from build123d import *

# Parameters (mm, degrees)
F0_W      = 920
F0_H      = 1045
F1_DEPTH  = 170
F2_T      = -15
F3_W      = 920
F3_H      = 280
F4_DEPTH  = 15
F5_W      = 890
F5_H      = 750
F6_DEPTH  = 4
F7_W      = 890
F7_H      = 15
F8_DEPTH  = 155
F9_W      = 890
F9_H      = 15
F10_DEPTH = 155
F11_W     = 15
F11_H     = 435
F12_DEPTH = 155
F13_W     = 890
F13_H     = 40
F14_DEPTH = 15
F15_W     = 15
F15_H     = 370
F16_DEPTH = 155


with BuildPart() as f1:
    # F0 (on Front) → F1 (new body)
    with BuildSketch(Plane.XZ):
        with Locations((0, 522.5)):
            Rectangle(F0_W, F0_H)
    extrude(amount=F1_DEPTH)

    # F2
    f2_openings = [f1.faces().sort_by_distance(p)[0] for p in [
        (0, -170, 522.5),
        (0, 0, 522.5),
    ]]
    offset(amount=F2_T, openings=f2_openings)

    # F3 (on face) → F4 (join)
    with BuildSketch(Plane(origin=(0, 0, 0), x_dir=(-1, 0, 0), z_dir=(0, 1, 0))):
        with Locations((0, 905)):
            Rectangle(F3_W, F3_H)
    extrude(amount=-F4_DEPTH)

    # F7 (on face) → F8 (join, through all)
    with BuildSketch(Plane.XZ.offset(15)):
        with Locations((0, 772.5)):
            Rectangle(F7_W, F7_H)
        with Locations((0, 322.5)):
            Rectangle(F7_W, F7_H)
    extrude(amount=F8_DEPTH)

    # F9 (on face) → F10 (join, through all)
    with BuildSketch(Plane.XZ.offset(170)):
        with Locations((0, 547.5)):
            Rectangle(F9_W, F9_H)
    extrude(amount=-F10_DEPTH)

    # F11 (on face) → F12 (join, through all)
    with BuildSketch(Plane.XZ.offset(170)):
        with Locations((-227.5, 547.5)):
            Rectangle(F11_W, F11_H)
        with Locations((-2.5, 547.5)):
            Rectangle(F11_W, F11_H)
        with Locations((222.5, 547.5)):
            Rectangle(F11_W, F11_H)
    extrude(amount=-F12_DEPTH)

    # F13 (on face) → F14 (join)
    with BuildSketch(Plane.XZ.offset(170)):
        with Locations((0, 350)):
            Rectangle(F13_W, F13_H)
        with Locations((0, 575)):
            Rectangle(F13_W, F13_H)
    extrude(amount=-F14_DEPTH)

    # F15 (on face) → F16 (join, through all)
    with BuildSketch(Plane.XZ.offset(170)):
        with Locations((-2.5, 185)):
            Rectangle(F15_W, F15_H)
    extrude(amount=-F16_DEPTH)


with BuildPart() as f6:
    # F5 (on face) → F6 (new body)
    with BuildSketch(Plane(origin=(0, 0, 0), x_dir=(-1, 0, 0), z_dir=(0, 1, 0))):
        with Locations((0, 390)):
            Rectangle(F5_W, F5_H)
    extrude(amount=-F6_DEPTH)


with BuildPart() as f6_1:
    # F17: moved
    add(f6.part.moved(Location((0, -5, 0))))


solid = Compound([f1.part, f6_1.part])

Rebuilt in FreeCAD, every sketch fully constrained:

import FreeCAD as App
import Part
import Sketcher
Q = App.Units.Quantity


def faces_at(feature, points):
    """Names of the faces that lie closest to the given points."""
    faces = feature.Shape.Faces
    near = lambda p: min(range(len(faces)), key=lambda i: faces[i].distToShape(Part.Vertex(*p))[0])
    return sorted({f"Face{near(p) + 1}" for p in points})

doc = App.newDocument("Part")
params = doc.addObject("Spreadsheet::Sheet", "Params")
for row, (alias, value) in enumerate([
    ("sketch1_width", "920 mm"),
    ("sketch1_height", "1045 mm"),
    ("pad1_length", "170 mm"),
    ("thickness_wall", "15 mm"),
    ("sketch2_width", "920 mm"),
    ("sketch2_height", "280 mm"),
    ("pad2_length", "15 mm"),
    ("sketch3_width", "890 mm"),
    ("sketch3_height", "15 mm"),
    ("pad3_length", "155 mm"),
    ("sketch4_width", "890 mm"),
    ("sketch4_height", "15 mm"),
    ("pad4_length", "155 mm"),
    ("sketch5_width", "15 mm"),
    ("sketch5_height", "435 mm"),
    ("sketch6_width", "890 mm"),
    ("sketch6_height", "40 mm"),
    ("pad6_length", "15 mm"),
    ("sketch7_width", "15 mm"),
    ("sketch7_height", "370 mm"),
    ("pad7_length", "155 mm"),
    ("sketch8_width", "890 mm"),
    ("sketch8_height", "750 mm"),
    ("pad8_length", "4 mm"),
], start=1):
    params.set(f"A{row}", alias)
    params.set(f"B{row}", "=" + value)
    params.setAlias(f"B{row}", alias)

body = doc.addObject("PartDesign::Body", "Body")

sketch1 = body.newObject("Sketcher::SketchObject", "Sketch")
sketch1.AttachmentSupport = (doc.getObject("XZ_Plane"), [""])
sketch1.MapMode = "FlatFace"
sketch1.addGeometry([
    Part.LineSegment(App.Vector(-460, 1045, 0), App.Vector(-460, 0, 0)),
    Part.LineSegment(App.Vector(-460, 0, 0), App.Vector(460, 0, 0)),
    Part.LineSegment(App.Vector(460, 0, 0), App.Vector(460, 1045, 0)),
    Part.LineSegment(App.Vector(460, 1045, 0), App.Vector(-460, 1045, 0)),
], False)
sketch1.addConstraint([
    Sketcher.Constraint("Coincident", 0, 2, 1, 1),
    Sketcher.Constraint("Coincident", 1, 2, 2, 1),
    Sketcher.Constraint("Coincident", 2, 2, 3, 1),
    Sketcher.Constraint("Coincident", 3, 2, 0, 1),
    Sketcher.Constraint("Vertical", 0),
    Sketcher.Constraint("Horizontal", 1),
    Sketcher.Constraint("Vertical", 2),
    Sketcher.Constraint("Horizontal", 3),
    Sketcher.Constraint("Symmetric", 0, 2, 1, 2, -1, 1),
    Sketcher.Constraint("DistanceX", 1, 1, 1, 2, Q("920 mm")),
    Sketcher.Constraint("DistanceY", 0, 2, 0, 1, Q("1045 mm")),
])
sketch1.setExpression("Constraints[9]", "Params.sketch1_width")
sketch1.setExpression("Constraints[10]", "Params.sketch1_height")
pad1 = body.newObject("PartDesign::Pad", "Pad")
pad1.Profile = sketch1
pad1.setExpression("Length", "Params.pad1_length")
doc.recompute()

thickness = body.newObject("PartDesign::Thickness", "Thickness")
thickness.Base = (pad1, faces_at(pad1, [(0, -170, 522.5), (0, 0, 522.5)]))
thickness.setExpression("Value", "Params.thickness_wall")
thickness.Reversed = True
thickness.Join = "Arc"

sketch2 = body.newObject("Sketcher::SketchObject", "Sketch001")
sketch2.AttachmentSupport = (doc.getObject("XZ_Plane"), [""])
sketch2.MapMode = "FlatFace"
sketch2.addGeometry([
    Part.LineSegment(App.Vector(460, 1045, 0), App.Vector(460, 765, 0)),
    Part.LineSegment(App.Vector(460, 765, 0), App.Vector(-460, 765, 0)),
    Part.LineSegment(App.Vector(-460, 765, 0), App.Vector(-460, 1045, 0)),
    Part.LineSegment(App.Vector(-460, 1045, 0), App.Vector(460, 1045, 0)),
], False)
sketch2.addConstraint([
    Sketcher.Constraint("Coincident", 0, 2, 1, 1),
    Sketcher.Constraint("Coincident", 1, 2, 2, 1),
    Sketcher.Constraint("Coincident", 2, 2, 3, 1),
    Sketcher.Constraint("Coincident", 3, 2, 0, 1),
    Sketcher.Constraint("Vertical", 0),
    Sketcher.Constraint("Horizontal", 1),
    Sketcher.Constraint("Vertical", 2),
    Sketcher.Constraint("Horizontal", 3),
    Sketcher.Constraint("DistanceX", 1, 2, 1, 1, Q("920 mm")),
    Sketcher.Constraint("DistanceY", 0, 2, 0, 1, Q("280 mm")),
    Sketcher.Constraint("DistanceX", -1, 1, 0, 2, Q("460 mm")),
    Sketcher.Constraint("DistanceY", -1, 1, 0, 2, Q("765 mm")),
])
sketch2.setExpression("Constraints[8]", "Params.sketch2_width")
sketch2.setExpression("Constraints[9]", "Params.sketch2_height")
pad2 = body.newObject("PartDesign::Pad", "Pad001")
pad2.Profile = sketch2
pad2.setExpression("Length", "Params.pad2_length")

sketch3 = body.newObject("Sketcher::SketchObject", "Sketch002")
sketch3.AttachmentSupport = (doc.getObject("XZ_Plane"), [""])
sketch3.MapMode = "FlatFace"
sketch3.AttachmentOffset = App.Placement(App.Vector(0, 0, 15), App.Rotation())
sketch3.addGeometry([
    Part.LineSegment(App.Vector(-445, 780, 0), App.Vector(-445, 765, 0)),
    Part.LineSegment(App.Vector(-445, 765, 0), App.Vector(445, 765, 0)),
    Part.LineSegment(App.Vector(445, 765, 0), App.Vector(445, 780, 0)),
    Part.LineSegment(App.Vector(445, 780, 0), App.Vector(-445, 780, 0)),
    Part.LineSegment(App.Vector(-445, 330, 0), App.Vector(-445, 315, 0)),
    Part.LineSegment(App.Vector(-445, 315, 0), App.Vector(445, 315, 0)),
    Part.LineSegment(App.Vector(445, 315, 0), App.Vector(445, 330, 0)),
    Part.LineSegment(App.Vector(445, 330, 0), App.Vector(-445, 330, 0)),
], False)
sketch3.addConstraint([
    Sketcher.Constraint("Coincident", 0, 2, 1, 1),
    Sketcher.Constraint("Coincident", 1, 2, 2, 1),
    Sketcher.Constraint("Coincident", 2, 2, 3, 1),
    Sketcher.Constraint("Coincident", 3, 2, 0, 1),
    Sketcher.Constraint("Coincident", 4, 2, 5, 1),
    Sketcher.Constraint("Coincident", 5, 2, 6, 1),
    Sketcher.Constraint("Coincident", 6, 2, 7, 1),
    Sketcher.Constraint("Coincident", 7, 2, 4, 1),
    Sketcher.Constraint("Vertical", 0),
    Sketcher.Constraint("Horizontal", 1),
    Sketcher.Constraint("Vertical", 2),
    Sketcher.Constraint("Horizontal", 3),
    Sketcher.Constraint("Vertical", 4),
    Sketcher.Constraint("Horizontal", 5),
    Sketcher.Constraint("Vertical", 6),
    Sketcher.Constraint("Horizontal", 7),
    Sketcher.Constraint("Vertical", 3, 2, 4, 2),
    Sketcher.Constraint("Vertical", 2, 2, 5, 2),
    Sketcher.Constraint("Equal", 2, 4),
    Sketcher.Constraint("DistanceX", 1, 1, 1, 2, Q("890 mm")),
    Sketcher.Constraint("DistanceY", 0, 2, 0, 1, Q("15 mm")),
    Sketcher.Constraint("DistanceX", 0, 2, -1, 1, Q("445 mm")),
    Sketcher.Constraint("DistanceY", -1, 1, 0, 2, Q("765 mm")),
    Sketcher.Constraint("DistanceY", -1, 1, 4, 2, Q("315 mm")),
])
sketch3.setExpression("Constraints[19]", "Params.sketch3_width")
sketch3.setExpression("Constraints[20]", "Params.sketch3_height")
pad3 = body.newObject("PartDesign::Pad", "Pad002")
pad3.Profile = sketch3
pad3.setExpression("Length", "Params.pad3_length")

sketch4 = body.newObject("Sketcher::SketchObject", "Sketch003")
sketch4.AttachmentSupport = (doc.getObject("XZ_Plane"), [""])
sketch4.MapMode = "FlatFace"
sketch4.AttachmentOffset = App.Placement(App.Vector(0, 0, 170), App.Rotation())
sketch4.addGeometry([
    Part.LineSegment(App.Vector(-445, 555, 0), App.Vector(-445, 540, 0)),
    Part.LineSegment(App.Vector(-445, 540, 0), App.Vector(445, 540, 0)),
    Part.LineSegment(App.Vector(445, 540, 0), App.Vector(445, 555, 0)),
    Part.LineSegment(App.Vector(445, 555, 0), App.Vector(-445, 555, 0)),
], False)
sketch4.addConstraint([
    Sketcher.Constraint("Coincident", 0, 2, 1, 1),
    Sketcher.Constraint("Coincident", 1, 2, 2, 1),
    Sketcher.Constraint("Coincident", 2, 2, 3, 1),
    Sketcher.Constraint("Coincident", 3, 2, 0, 1),
    Sketcher.Constraint("Vertical", 0),
    Sketcher.Constraint("Horizontal", 1),
    Sketcher.Constraint("Vertical", 2),
    Sketcher.Constraint("Horizontal", 3),
    Sketcher.Constraint("DistanceX", 1, 1, 1, 2, Q("890 mm")),
    Sketcher.Constraint("DistanceY", 0, 2, 0, 1, Q("15 mm")),
    Sketcher.Constraint("DistanceX", 0, 2, -1, 1, Q("445 mm")),
    Sketcher.Constraint("DistanceY", -1, 1, 0, 2, Q("540 mm")),
])
sketch4.setExpression("Constraints[8]", "Params.sketch4_width")
sketch4.setExpression("Constraints[9]", "Params.sketch4_height")
pad4 = body.newObject("PartDesign::Pad", "Pad003")
pad4.Profile = sketch4
pad4.setExpression("Length", "Params.pad4_length")
pad4.Reversed = True

sketch5 = body.newObject("Sketcher::SketchObject", "Sketch004")
sketch5.AttachmentSupport = (doc.getObject("XZ_Plane"), [""])
sketch5.MapMode = "FlatFace"
sketch5.AttachmentOffset = App.Placement(App.Vector(0, 0, 170), App.Rotation())
sketch5.addGeometry([
    Part.LineSegment(App.Vector(-235, 765, 0), App.Vector(-235, 330, 0)),
    Part.LineSegment(App.Vector(-235, 330, 0), App.Vector(-220, 330, 0)),
    Part.LineSegment(App.Vector(-220, 330, 0), App.Vector(-220, 765, 0)),
    Part.LineSegment(App.Vector(-220, 765, 0), App.Vector(-235, 765, 0)),
    Part.LineSegment(App.Vector(-10, 765, 0), App.Vector(-10, 330, 0)),
    Part.LineSegment(App.Vector(-10, 330, 0), App.Vector(5, 330, 0)),
    Part.LineSegment(App.Vector(5, 330, 0), App.Vector(5, 765, 0)),
    Part.LineSegment(App.Vector(5, 765, 0), App.Vector(-10, 765, 0)),
    Part.LineSegment(App.Vector(215, 765, 0), App.Vector(215, 330, 0)),
    Part.LineSegment(App.Vector(215, 330, 0), App.Vector(230, 330, 0)),
    Part.LineSegment(App.Vector(230, 330, 0), App.Vector(230, 765, 0)),
    Part.LineSegment(App.Vector(230, 765, 0), App.Vector(215, 765, 0)),
], False)
sketch5.addConstraint([
    Sketcher.Constraint("Coincident", 0, 2, 1, 1),
    Sketcher.Constraint("Coincident", 1, 2, 2, 1),
    Sketcher.Constraint("Coincident", 2, 2, 3, 1),
    Sketcher.Constraint("Coincident", 3, 2, 0, 1),
    Sketcher.Constraint("Coincident", 4, 2, 5, 1),
    Sketcher.Constraint("Coincident", 5, 2, 6, 1),
    Sketcher.Constraint("Coincident", 6, 2, 7, 1),
    Sketcher.Constraint("Coincident", 7, 2, 4, 1),
    Sketcher.Constraint("Coincident", 8, 2, 9, 1),
    Sketcher.Constraint("Coincident", 9, 2, 10, 1),
    Sketcher.Constraint("Coincident", 10, 2, 11, 1),
    Sketcher.Constraint("Coincident", 11, 2, 8, 1),
    Sketcher.Constraint("Vertical", 0),
    Sketcher.Constraint("Horizontal", 1),
    Sketcher.Constraint("Vertical", 2),
    Sketcher.Constraint("Horizontal", 3),
    Sketcher.Constraint("Vertical", 4),
    Sketcher.Constraint("Horizontal", 5),
    Sketcher.Constraint("Vertical", 6),
    Sketcher.Constraint("Horizontal", 7),
    Sketcher.Constraint("Vertical", 8),
    Sketcher.Constraint("Horizontal", 9),
    Sketcher.Constraint("Vertical", 10),
    Sketcher.Constraint("Horizontal", 11),
    Sketcher.Constraint("Horizontal", 1, 2, 4, 2),
    Sketcher.Constraint("Horizontal", 3, 2, 6, 2),
    Sketcher.Constraint("Horizontal", 5, 2, 8, 2),
    Sketcher.Constraint("Horizontal", 7, 2, 10, 2),
    Sketcher.Constraint("Equal", 3, 5),
    Sketcher.Constraint("Equal", 7, 9),
    Sketcher.Constraint("DistanceX", 1, 1, 1, 2, Q("15 mm")),
    Sketcher.Constraint("DistanceY", 0, 2, 0, 1, Q("435 mm")),
    Sketcher.Constraint("DistanceX", 0, 2, -1, 1, Q("235 mm")),
    Sketcher.Constraint("DistanceY", -1, 1, 0, 2, Q("330 mm")),
    Sketcher.Constraint("DistanceX", 4, 2, -1, 1, Q("10 mm")),
    Sketcher.Constraint("DistanceX", -1, 1, 8, 2, Q("215 mm")),
])
sketch5.setExpression("Constraints[30]", "Params.sketch5_width")
sketch5.setExpression("Constraints[31]", "Params.sketch5_height")
pad5 = body.newObject("PartDesign::Pad", "Pad004")
pad5.Profile = sketch5
pad5.Type = "UpToLast"
pad5.Reversed = True

sketch6 = body.newObject("Sketcher::SketchObject", "Sketch005")
sketch6.AttachmentSupport = (doc.getObject("XZ_Plane"), [""])
sketch6.MapMode = "FlatFace"
sketch6.AttachmentOffset = App.Placement(App.Vector(0, 0, 170), App.Rotation())
sketch6.addGeometry([
    Part.LineSegment(App.Vector(-445, 370, 0), App.Vector(-445, 330, 0)),
    Part.LineSegment(App.Vector(-445, 330, 0), App.Vector(445, 330, 0)),
    Part.LineSegment(App.Vector(445, 330, 0), App.Vector(445, 370, 0)),
    Part.LineSegment(App.Vector(445, 370, 0), App.Vector(-445, 370, 0)),
    Part.LineSegment(App.Vector(-445, 595, 0), App.Vector(-445, 555, 0)),
    Part.LineSegment(App.Vector(-445, 555, 0), App.Vector(445, 555, 0)),
    Part.LineSegment(App.Vector(445, 555, 0), App.Vector(445, 595, 0)),
    Part.LineSegment(App.Vector(445, 595, 0), App.Vector(-445, 595, 0)),
], False)
sketch6.addConstraint([
    Sketcher.Constraint("Coincident", 0, 2, 1, 1),
    Sketcher.Constraint("Coincident", 1, 2, 2, 1),
    Sketcher.Constraint("Coincident", 2, 2, 3, 1),
    Sketcher.Constraint("Coincident", 3, 2, 0, 1),
    Sketcher.Constraint("Coincident", 4, 2, 5, 1),
    Sketcher.Constraint("Coincident", 5, 2, 6, 1),
    Sketcher.Constraint("Coincident", 6, 2, 7, 1),
    Sketcher.Constraint("Coincident", 7, 2, 4, 1),
    Sketcher.Constraint("Vertical", 0),
    Sketcher.Constraint("Horizontal", 1),
    Sketcher.Constraint("Vertical", 2),
    Sketcher.Constraint("Horizontal", 3),
    Sketcher.Constraint("Vertical", 4),
    Sketcher.Constraint("Horizontal", 5),
    Sketcher.Constraint("Vertical", 6),
    Sketcher.Constraint("Horizontal", 7),
    Sketcher.Constraint("Vertical", 3, 2, 4, 2),
    Sketcher.Constraint("Vertical", 2, 2, 5, 2),
    Sketcher.Constraint("Equal", 2, 4),
    Sketcher.Constraint("DistanceX", 1, 1, 1, 2, Q("890 mm")),
    Sketcher.Constraint("DistanceY", 0, 2, 0, 1, Q("40 mm")),
    Sketcher.Constraint("DistanceX", 0, 2, -1, 1, Q("445 mm")),
    Sketcher.Constraint("DistanceY", -1, 1, 0, 2, Q("330 mm")),
    Sketcher.Constraint("DistanceY", -1, 1, 4, 2, Q("555 mm")),
])
sketch6.setExpression("Constraints[19]", "Params.sketch6_width")
sketch6.setExpression("Constraints[20]", "Params.sketch6_height")
pad6 = body.newObject("PartDesign::Pad", "Pad005")
pad6.Profile = sketch6
pad6.setExpression("Length", "Params.pad6_length")
pad6.Reversed = True

sketch7 = body.newObject("Sketcher::SketchObject", "Sketch006")
sketch7.AttachmentSupport = (doc.getObject("XZ_Plane"), [""])
sketch7.MapMode = "FlatFace"
sketch7.AttachmentOffset = App.Placement(App.Vector(0, 0, 170), App.Rotation())
sketch7.addGeometry([
    Part.LineSegment(App.Vector(-10, 370, 0), App.Vector(-10, 0, 0)),
    Part.LineSegment(App.Vector(-10, 0, 0), App.Vector(5, 0, 0)),
    Part.LineSegment(App.Vector(5, 0, 0), App.Vector(5, 370, 0)),
    Part.LineSegment(App.Vector(5, 370, 0), App.Vector(-10, 370, 0)),
], False)
sketch7.addConstraint([
    Sketcher.Constraint("Coincident", 0, 2, 1, 1),
    Sketcher.Constraint("Coincident", 1, 2, 2, 1),
    Sketcher.Constraint("Coincident", 2, 2, 3, 1),
    Sketcher.Constraint("Coincident", 3, 2, 0, 1),
    Sketcher.Constraint("Vertical", 0),
    Sketcher.Constraint("Horizontal", 1),
    Sketcher.Constraint("Vertical", 2),
    Sketcher.Constraint("Horizontal", 3),
    Sketcher.Constraint("PointOnObject", 0, 2, -1),
    Sketcher.Constraint("DistanceX", 1, 1, 1, 2, Q("15 mm")),
    Sketcher.Constraint("DistanceY", 0, 2, 0, 1, Q("370 mm")),
    Sketcher.Constraint("DistanceX", 0, 2, -1, 1, Q("10 mm")),
])
sketch7.setExpression("Constraints[9]", "Params.sketch7_width")
sketch7.setExpression("Constraints[10]", "Params.sketch7_height")
pad7 = body.newObject("PartDesign::Pad", "Pad006")
pad7.Profile = sketch7
pad7.setExpression("Length", "Params.pad7_length")
pad7.Reversed = True
body2 = doc.addObject("PartDesign::Body", "Body001")

sketch8 = body2.newObject("Sketcher::SketchObject", "Sketch007")
sketch8.AttachmentSupport = (doc.getObject("XZ_Plane001"), [""])
sketch8.MapMode = "FlatFace"
sketch8.addGeometry([
    Part.LineSegment(App.Vector(445, 765, 0), App.Vector(445, 15, 0)),
    Part.LineSegment(App.Vector(445, 15, 0), App.Vector(-445, 15, 0)),
    Part.LineSegment(App.Vector(-445, 15, 0), App.Vector(-445, 765, 0)),
    Part.LineSegment(App.Vector(-445, 765, 0), App.Vector(445, 765, 0)),
], False)
sketch8.addConstraint([
    Sketcher.Constraint("Coincident", 0, 2, 1, 1),
    Sketcher.Constraint("Coincident", 1, 2, 2, 1),
    Sketcher.Constraint("Coincident", 2, 2, 3, 1),
    Sketcher.Constraint("Coincident", 3, 2, 0, 1),
    Sketcher.Constraint("Vertical", 0),
    Sketcher.Constraint("Horizontal", 1),
    Sketcher.Constraint("Vertical", 2),
    Sketcher.Constraint("Horizontal", 3),
    Sketcher.Constraint("DistanceX", 1, 2, 1, 1, Q("890 mm")),
    Sketcher.Constraint("DistanceY", 0, 2, 0, 1, Q("750 mm")),
    Sketcher.Constraint("DistanceX", -1, 1, 0, 2, Q("445 mm")),
    Sketcher.Constraint("DistanceY", -1, 1, 0, 2, Q("15 mm")),
])
sketch8.setExpression("Constraints[8]", "Params.sketch8_width")
sketch8.setExpression("Constraints[9]", "Params.sketch8_height")
pad8 = body2.newObject("PartDesign::Pad", "Pad007")
pad8.Profile = sketch8
pad8.setExpression("Length", "Params.pad8_length")
body3 = doc.addObject("PartDesign::Body", "Body002")
doc.recompute()

body2.Placement = App.Placement(App.Vector(0, -5, 0), App.Rotation(App.Vector(0, 0, 1), 0))
boolean = body3.newObject("PartDesign::Boolean", "Boolean")
boolean.Type = "Fuse"
boolean.addObjects([body2])

doc.recompute()
